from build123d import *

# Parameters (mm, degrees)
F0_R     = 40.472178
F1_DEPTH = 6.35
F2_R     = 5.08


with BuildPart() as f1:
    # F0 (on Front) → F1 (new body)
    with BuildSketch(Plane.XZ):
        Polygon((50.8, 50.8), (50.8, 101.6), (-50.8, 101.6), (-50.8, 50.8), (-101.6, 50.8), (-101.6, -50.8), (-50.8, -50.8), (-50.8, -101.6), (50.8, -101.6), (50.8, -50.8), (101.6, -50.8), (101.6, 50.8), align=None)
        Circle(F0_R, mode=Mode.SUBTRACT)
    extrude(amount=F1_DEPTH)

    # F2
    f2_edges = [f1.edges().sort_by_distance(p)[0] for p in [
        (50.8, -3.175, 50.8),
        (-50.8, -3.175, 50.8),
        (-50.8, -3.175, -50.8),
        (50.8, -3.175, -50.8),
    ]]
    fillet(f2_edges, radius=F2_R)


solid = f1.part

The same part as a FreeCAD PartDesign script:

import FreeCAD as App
import Part
import Sketcher
from FreeCAD import Vector
Q = App.Units.Quantity


def edges_at(feature, points):
    """Names of the edges that pass closest to the given points."""
    edges = feature.Shape.Edges
    near = lambda p: min(range(len(edges)), key=lambda i: edges[i].distToShape(Part.Vertex(*p))[0])
    return sorted({f"Edge{near(p) + 1}" for p in points})

doc = App.newDocument("Part")
body = doc.addObject("PartDesign::Body", "Body")

sketch1 = body.newObject("Sketcher::SketchObject", "Sketch")
sketch1.AttachmentSupport = (doc.getObject("XZ_Plane"), [""])
sketch1.MapMode = "FlatFace"
sketch1.addGeometry(Part.LineSegment(Vector(50.8, 50.8, 0), Vector(50.8, 101.6, 0)), False)
sketch1.addGeometry(Part.LineSegment(Vector(50.8, 101.6, 0), Vector(-50.8, 101.6, 0)), False)
sketch1.addGeometry(Part.LineSegment(Vector(-50.8, 101.6, 0), Vector(-50.8, 50.8, 0)), False)
sketch1.addGeometry(Part.LineSegment(Vector(-50.8, 50.8, 0), Vector(-101.6, 50.8, 0)), False)
sketch1.addGeometry(Part.LineSegment(Vector(-101.6, 50.8, 0), Vector(-101.6, -50.8, 0)), False)
sketch1.addGeometry(Part.LineSegment(Vector(-101.6, -50.8, 0), Vector(-50.8, -50.8, 0)), False)
sketch1.addGeometry(Part.LineSegment(Vector(-50.8, -50.8, 0), Vector(-50.8, -101.6, 0)), False)
sketch1.addGeometry(Part.LineSegment(Vector(-50.8, -101.6, 0), Vector(50.8, -101.6, 0)), False)
sketch1.addGeometry(Part.LineSegment(Vector(50.8, -101.6, 0), Vector(50.8, -50.8, 0)), False)
sketch1.addGeometry(Part.LineSegment(Vector(50.8, -50.8, 0), Vector(101.6, -50.8, 0)), False)
sketch1.addGeometry(Part.LineSegment(Vector(101.6, -50.8, 0), Vector(101.6, 50.8, 0)), False)
sketch1.addGeometry(Part.LineSegment(Vector(101.6, 50.8, 0), Vector(50.8, 50.8, 0)), False)
sketch1.addGeometry(Part.Circle(Vector(0, 0, 0), Vector(0, 0, 1), 40.472178), False)
sketch1.addConstraint(Sketcher.Constraint("Coincident", 0, 2, 1, 1))
sketch1.addConstraint(Sketcher.Constraint("Coincident", 1, 2, 2, 1))
sketch1.addConstraint(Sketcher.Constraint("Coincident", 2, 2, 3, 1))
sketch1.addConstraint(Sketcher.Constraint("Coincident", 3, 2, 4, 1))
sketch1.addConstraint(Sketcher.Constraint("Coincident", 4, 2, 5, 1))
sketch1.addConstraint(Sketcher.Constraint("Coincident", 5, 2, 6, 1))
sketch1.addConstraint(Sketcher.Constraint("Coincident", 6, 2, 7, 1))
sketch1.addConstraint(Sketcher.Constraint("Coincident", 7, 2, 8, 1))
sketch1.addConstraint(Sketcher.Constraint("Coincident", 8, 2, 9, 1))
sketch1.addConstraint(Sketcher.Constraint("Coincident", 9, 2, 10, 1))
sketch1.addConstraint(Sketcher.Constraint("Coincident", 10, 2, 11, 1))
sketch1.addConstraint(Sketcher.Constraint("Coincident", 11, 2, 0, 1))
sketch1.addConstraint(Sketcher.Constraint("Vertical", 0))
sketch1.addConstraint(Sketcher.Constraint("Horizontal", 1))
sketch1.addConstraint(Sketcher.Constraint("Vertical", 2))
sketch1.addConstraint(Sketcher.Constraint("Horizontal", 3))
sketch1.addConstraint(Sketcher.Constraint("Vertical", 4))
sketch1.addConstraint(Sketcher.Constraint("Horizontal", 5))
sketch1.addConstraint(Sketcher.Constraint("Vertical", 6))
sketch1.addConstraint(Sketcher.Constraint("Horizontal", 7))
sketch1.addConstraint(Sketcher.Constraint("Vertical", 8))
sketch1.addConstraint(Sketcher.Constraint("Horizontal", 9))
sketch1.addConstraint(Sketcher.Constraint("Vertical", 10))
sketch1.addConstraint(Sketcher.Constraint("Horizontal", 11))
sketch1.addConstraint(Sketcher.Constraint("Coincident", 12, 3, -1, 1))
sketch1.addConstraint(Sketcher.Constraint("Symmetric", 0, 2, 6, 2, -1, 1))
sketch1.addConstraint(Sketcher.Constraint("Symmetric", 2, 2, 8, 2, -1, 1))
sketch1.addConstraint(Sketcher.Constraint("Symmetric", 4, 2, 10, 2, -1, 1))
sketch1.addConstraint(Sketcher.Constraint("Symmetric", 5, 2, 8, 2, -2))
sketch1.addConstraint(Sketcher.Constraint("Equal", 11, 0))
sketch1.addConstraint(Sketcher.Constraint("Equal", 7, 4))
sketch1.addConstraint(Sketcher.Constraint("DistanceX", 1, 2, 1, 1, Q("4 in")))
sketch1.addConstraint(Sketcher.Constraint("DistanceX", 3, 2, 3, 1, Q("2 in")))
sketch1.addConstraint(Sketcher.Constraint("Diameter", 12, 80.944356))
pad1 = body.newObject("PartDesign::Pad", "Pad")
pad1.Profile = sketch1
pad1.Length = Q("0.25 in")
doc.recompute()

fillet = body.newObject("PartDesign::Fillet", "Fillet")
fillet.Base = (pad1, edges_at(pad1, [
    (50.8, -3.175, 50.8),
    (-50.8, -3.175, 50.8),
    (-50.8, -3.175, -50.8),
    (50.8, -3.175, -50.8),
]))
fillet.Radius = Q("0.2 in")

doc.recompute()
